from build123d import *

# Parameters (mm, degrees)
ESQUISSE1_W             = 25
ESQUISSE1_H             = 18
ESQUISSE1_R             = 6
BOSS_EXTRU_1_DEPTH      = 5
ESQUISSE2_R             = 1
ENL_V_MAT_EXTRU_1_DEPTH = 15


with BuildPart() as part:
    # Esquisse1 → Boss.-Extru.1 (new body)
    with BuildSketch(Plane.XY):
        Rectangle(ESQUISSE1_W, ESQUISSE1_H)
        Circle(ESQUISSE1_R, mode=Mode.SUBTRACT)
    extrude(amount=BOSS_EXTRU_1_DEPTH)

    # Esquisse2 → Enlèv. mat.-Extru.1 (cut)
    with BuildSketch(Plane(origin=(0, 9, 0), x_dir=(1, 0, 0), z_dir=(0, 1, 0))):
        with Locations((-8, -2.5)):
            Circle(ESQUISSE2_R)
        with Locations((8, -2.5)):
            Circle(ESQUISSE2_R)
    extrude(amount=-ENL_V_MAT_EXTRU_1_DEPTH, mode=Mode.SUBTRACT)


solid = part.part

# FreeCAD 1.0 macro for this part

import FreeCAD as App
import Part
import Sketcher
Q = App.Units.Quantity


def add_polygon(sketch, points):
    """Adds a closed chain of lines whose ends are joined by coincident constraints."""
    first, n = sketch.GeometryCount, len(points)
    for a, b in zip(points, points[1:] + points[:1]):
        sketch.addGeometry(Part.LineSegment(App.Vector(*a, 0), App.Vector(*b, 0)), False)
    for i in range(n):
        sketch.addConstraint(Sketcher.Constraint("Coincident", first + i, 2, first + (i + 1) % n, 1))

doc = App.newDocument("Part")
body = doc.addObject("PartDesign::Body", "Body")

# Sketch on XY plane
sketch1 = doc.addObject("Sketcher::SketchObject", "Sketch")
body.addObject(sketch1)
sketch1.AttachmentSupport = (doc.XY_Plane, [""])
sketch1.MapMode = "FlatFace"
add_polygon(sketch1, [(-12, 9), (-12, -9), (12, -9), (12, 9)])  # lines 0-3
sketch1.addGeometry(Part.Circle(App.Vector(0, 0, 0), App.Vector(0, 0, 1), 6), False)  # 4
sketch1.addConstraint([
    Sketcher.Constraint("Vertical", 0),
    Sketcher.Constraint("Horizontal", 1),
    Sketcher.Constraint("Vertical", 2),
    Sketcher.Constraint("Horizontal", 3),
    Sketcher.Constraint("Coincident", 4, 3, -1, 1),
    Sketcher.Constraint("Symmetric", 0, 2, 2, 2, -1, 1),
    Sketcher.Constraint("Diameter", 4, Q("12 mm")),
    Sketcher.Constraint("DistanceX", 1, 1, 1, 2, Q("25 mm")),
    Sketcher.Constraint("DistanceY", 0, 2, 0, 1, Q("18 mm")),
])
pad1 = doc.addObject("PartDesign::Pad", "Pad")
body.addObject(pad1)
pad1.Profile = sketch1
pad1.Length = 5

# Sketch on XZ plane
sketch2 = doc.addObject("Sketcher::SketchObject", "Sketch001")
body.addObject(sketch2)
sketch2.AttachmentSupport = (doc.XZ_Plane, [""])
sketch2.MapMode = "FlatFace"
sketch2.AttachmentOffset = App.Placement(App.Vector(0, 0, -9), App.Rotation())
sketch2.addGeometry([
    Part.Circle(App.Vector(-8, 2.5, 0), App.Vector(0, 0, 1), 1),
    Part.Circle(App.Vector(8, 2.5, 0), App.Vector(0, 0, 1), 1),
], False)
sketch2.addConstraint([
    Sketcher.Constraint("Equal", 0, 1),
    Sketcher.Constraint("Symmetric", 0, 3, 1, 3, -2),
    Sketcher.Constraint("Diameter", 0, Q("2 mm")),
    Sketcher.Constraint("DistanceX", 0, 3, -1, 1, Q("8 mm")),
    Sketcher.Constraint("DistanceY", -1, 1, 0, 3, Q("2.5 mm")),
])
pocket1 = doc.addObject("PartDesign::Pocket", "Pocket")
body.addObject(pocket1)
pocket1.Profile = sketch2
pocket1.Length = 15
pocket1.Reversed = True

doc.recompute()
